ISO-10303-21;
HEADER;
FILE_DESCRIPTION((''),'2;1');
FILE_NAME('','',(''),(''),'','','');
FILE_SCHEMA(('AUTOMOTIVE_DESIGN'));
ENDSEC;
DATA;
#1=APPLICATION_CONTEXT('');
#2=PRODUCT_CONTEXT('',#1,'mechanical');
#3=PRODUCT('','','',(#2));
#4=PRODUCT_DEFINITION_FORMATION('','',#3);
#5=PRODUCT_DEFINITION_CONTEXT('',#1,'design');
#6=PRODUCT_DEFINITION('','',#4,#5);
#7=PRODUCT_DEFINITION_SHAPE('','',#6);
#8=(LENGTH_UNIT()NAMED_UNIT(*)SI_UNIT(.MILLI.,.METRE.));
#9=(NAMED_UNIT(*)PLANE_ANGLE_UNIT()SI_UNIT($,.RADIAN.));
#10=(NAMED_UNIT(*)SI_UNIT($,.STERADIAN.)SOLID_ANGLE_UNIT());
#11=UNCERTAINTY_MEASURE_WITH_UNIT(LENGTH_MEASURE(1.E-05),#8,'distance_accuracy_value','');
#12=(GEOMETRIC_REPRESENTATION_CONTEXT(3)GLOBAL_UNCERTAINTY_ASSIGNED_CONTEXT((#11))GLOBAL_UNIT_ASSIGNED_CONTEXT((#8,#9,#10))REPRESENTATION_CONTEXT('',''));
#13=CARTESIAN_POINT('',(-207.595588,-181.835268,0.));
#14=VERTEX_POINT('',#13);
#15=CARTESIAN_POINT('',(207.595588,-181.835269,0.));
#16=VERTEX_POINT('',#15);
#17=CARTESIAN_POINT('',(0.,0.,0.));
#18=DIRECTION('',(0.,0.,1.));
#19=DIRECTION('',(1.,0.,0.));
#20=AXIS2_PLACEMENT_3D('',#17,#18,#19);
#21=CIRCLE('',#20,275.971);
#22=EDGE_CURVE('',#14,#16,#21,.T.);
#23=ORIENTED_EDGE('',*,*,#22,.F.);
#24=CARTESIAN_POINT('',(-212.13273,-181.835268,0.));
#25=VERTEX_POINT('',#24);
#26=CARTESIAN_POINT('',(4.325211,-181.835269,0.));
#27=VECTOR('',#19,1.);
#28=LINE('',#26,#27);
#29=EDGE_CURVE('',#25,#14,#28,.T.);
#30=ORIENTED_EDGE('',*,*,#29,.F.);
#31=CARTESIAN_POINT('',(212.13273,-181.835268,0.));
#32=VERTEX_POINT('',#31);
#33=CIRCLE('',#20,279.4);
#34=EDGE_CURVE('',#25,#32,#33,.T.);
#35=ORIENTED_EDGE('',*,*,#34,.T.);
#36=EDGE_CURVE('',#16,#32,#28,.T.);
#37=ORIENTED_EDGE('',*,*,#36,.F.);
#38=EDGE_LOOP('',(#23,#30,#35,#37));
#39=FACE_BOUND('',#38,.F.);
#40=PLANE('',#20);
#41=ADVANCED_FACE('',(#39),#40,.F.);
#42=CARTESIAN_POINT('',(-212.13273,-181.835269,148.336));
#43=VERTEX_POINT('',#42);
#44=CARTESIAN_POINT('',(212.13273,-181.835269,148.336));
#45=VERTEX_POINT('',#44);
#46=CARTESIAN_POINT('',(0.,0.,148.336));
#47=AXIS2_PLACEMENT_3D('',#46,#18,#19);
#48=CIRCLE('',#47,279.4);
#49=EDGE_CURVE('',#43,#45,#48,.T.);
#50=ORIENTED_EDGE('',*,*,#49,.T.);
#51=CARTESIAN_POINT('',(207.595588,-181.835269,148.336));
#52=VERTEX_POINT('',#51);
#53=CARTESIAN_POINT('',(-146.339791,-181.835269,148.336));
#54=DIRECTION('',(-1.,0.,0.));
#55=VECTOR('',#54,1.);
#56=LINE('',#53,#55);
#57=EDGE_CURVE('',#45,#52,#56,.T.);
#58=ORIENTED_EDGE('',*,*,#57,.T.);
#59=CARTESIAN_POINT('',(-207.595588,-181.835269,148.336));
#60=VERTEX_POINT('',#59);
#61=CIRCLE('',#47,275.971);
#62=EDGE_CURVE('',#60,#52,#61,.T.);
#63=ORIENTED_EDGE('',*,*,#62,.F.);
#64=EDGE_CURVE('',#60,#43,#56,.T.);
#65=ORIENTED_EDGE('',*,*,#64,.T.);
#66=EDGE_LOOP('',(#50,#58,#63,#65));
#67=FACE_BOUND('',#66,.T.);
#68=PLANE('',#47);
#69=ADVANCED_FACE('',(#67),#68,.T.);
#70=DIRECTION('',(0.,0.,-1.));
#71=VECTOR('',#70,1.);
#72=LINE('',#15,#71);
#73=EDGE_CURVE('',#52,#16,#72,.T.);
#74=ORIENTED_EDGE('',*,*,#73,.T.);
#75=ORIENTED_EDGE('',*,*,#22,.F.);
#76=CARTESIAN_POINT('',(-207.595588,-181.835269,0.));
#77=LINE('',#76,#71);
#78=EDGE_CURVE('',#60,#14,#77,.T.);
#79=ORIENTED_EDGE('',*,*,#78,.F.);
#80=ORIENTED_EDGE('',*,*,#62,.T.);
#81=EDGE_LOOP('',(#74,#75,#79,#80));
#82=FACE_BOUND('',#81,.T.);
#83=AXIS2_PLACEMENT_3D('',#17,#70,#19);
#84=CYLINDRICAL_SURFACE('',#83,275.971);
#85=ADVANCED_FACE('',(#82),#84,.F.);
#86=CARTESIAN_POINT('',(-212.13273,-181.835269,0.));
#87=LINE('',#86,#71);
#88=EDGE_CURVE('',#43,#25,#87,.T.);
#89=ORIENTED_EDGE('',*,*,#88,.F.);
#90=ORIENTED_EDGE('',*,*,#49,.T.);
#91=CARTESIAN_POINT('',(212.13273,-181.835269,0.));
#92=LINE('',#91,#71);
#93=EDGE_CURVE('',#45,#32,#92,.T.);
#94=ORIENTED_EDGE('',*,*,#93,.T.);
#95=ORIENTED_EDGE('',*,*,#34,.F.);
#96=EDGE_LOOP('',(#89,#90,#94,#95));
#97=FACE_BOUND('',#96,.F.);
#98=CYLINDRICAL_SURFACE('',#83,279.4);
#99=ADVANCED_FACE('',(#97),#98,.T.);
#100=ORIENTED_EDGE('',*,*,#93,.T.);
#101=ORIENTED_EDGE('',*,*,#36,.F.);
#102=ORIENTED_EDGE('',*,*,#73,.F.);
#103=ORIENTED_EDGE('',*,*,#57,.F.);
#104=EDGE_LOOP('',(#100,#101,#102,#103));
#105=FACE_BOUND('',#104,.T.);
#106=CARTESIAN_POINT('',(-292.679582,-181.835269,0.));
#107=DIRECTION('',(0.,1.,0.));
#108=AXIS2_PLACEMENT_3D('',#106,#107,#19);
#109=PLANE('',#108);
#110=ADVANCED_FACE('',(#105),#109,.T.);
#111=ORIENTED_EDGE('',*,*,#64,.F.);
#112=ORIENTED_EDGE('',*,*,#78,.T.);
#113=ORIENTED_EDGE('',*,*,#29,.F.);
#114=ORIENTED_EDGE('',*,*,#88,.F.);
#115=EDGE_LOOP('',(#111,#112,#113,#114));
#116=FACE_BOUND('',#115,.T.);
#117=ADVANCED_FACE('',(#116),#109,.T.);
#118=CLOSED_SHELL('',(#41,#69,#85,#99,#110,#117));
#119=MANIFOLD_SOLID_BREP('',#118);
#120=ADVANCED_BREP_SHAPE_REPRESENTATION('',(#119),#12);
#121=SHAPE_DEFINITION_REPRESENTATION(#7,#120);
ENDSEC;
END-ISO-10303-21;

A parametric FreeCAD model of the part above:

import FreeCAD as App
import Part
import Sketcher
from FreeCAD import Vector
Q = App.Units.Quantity

doc = App.newDocument("Part")
params = doc.addObject("Spreadsheet::Sheet", "Params")
for row, (alias, value) in enumerate([
    ("sketch1_diameter", "22 in"),
    ("sketch1_diameter2", "21.73 in"),
    ("pad1_length", "5.84 in"),
], start=1):
    params.set(f"A{row}", alias)
    params.set(f"B{row}", "=" + value)
    params.setAlias(f"B{row}", alias)

body = doc.addObject("PartDesign::Body", "Body")

sketch1 = body.newObject("Sketcher::SketchObject", "Sketch")
sketch1.AttachmentSupport = (doc.getObject("XY_Plane"), [""])
sketch1.MapMode = "FlatFace"
sketch1.addGeometry([
    Part.Circle(Vector(0, 0, 0), Vector(0, 0, 1), 279),
    Part.Circle(Vector(0, 0, 0), Vector(0, 0, 1), 276),
], False)
sketch1.addConstraint([
    Sketcher.Constraint("Coincident", 0, 3, -1, 1),
    Sketcher.Constraint("Coincident", 1, 3, -1, 1),
    Sketcher.Constraint("Diameter", 0, Q("22 in")),
    Sketcher.Constraint("Diameter", 1, Q("21.73 in")),
])
sketch1.setExpression("Constraints[2]", "Params.sketch1_diameter")
sketch1.setExpression("Constraints[3]", "Params.sketch1_diameter2")
pad1 = body.newObject("PartDesign::Pad", "Pad")
pad1.Profile = sketch1
pad1.setExpression("Length", "Params.pad1_length")

sketch2 = body.newObject("Sketcher::SketchObject", "Sketch001")
sketch2.AttachmentSupport = (doc.getObject("XY_Plane"), [""])
sketch2.MapMode = "FlatFace"
sketch2.addGeometry([
    Part.LineSegment(Vector(-293, 280, 0), Vector(-293, -182, 0)),
    Part.LineSegment(Vector(-293, -182, 0), Vector(301, -182, 0)),
    Part.LineSegment(Vector(301, -182, 0), Vector(301, 280, 0)),
    Part.LineSegment(Vector(301, 280, 0), Vector(-293, 280, 0)),
], False)
sketch2.addConstraint([
    Sketcher.Constraint("Coincident", 0, 2, 1, 1),
    Sketcher.Constraint("Coincident", 1, 2, 2, 1),
    Sketcher.Constraint("Coincident", 2, 2, 3, 1),
    Sketcher.Constraint("Coincident", 3, 2, 0, 1),
    Sketcher.Constraint("Vertical", 0),
    Sketcher.Constraint("Horizontal", 1),
    Sketcher.Constraint("Vertical", 2),
    Sketcher.Constraint("Horizontal", 3),
    Sketcher.Constraint("DistanceY", 0, 2, 0, 1, Q("462.119319 mm")),
    Sketcher.Constraint("DistanceX", 1, 1, 1, 2, Q("594.009586 mm")),
    Sketcher.Constraint("DistanceX", 0, 2, -1, 1, Q("292.679582 mm")),
    Sketcher.Constraint("DistanceY", 0, 2, -1, 1, Q("181.835269 mm")),
])
pocket1 = body.newObject("PartDesign::Pocket", "Pocket")
pocket1.Profile = sketch2
pocket1.Type = "ThroughAll"
pocket1.Reversed = True

doc.recompute()
